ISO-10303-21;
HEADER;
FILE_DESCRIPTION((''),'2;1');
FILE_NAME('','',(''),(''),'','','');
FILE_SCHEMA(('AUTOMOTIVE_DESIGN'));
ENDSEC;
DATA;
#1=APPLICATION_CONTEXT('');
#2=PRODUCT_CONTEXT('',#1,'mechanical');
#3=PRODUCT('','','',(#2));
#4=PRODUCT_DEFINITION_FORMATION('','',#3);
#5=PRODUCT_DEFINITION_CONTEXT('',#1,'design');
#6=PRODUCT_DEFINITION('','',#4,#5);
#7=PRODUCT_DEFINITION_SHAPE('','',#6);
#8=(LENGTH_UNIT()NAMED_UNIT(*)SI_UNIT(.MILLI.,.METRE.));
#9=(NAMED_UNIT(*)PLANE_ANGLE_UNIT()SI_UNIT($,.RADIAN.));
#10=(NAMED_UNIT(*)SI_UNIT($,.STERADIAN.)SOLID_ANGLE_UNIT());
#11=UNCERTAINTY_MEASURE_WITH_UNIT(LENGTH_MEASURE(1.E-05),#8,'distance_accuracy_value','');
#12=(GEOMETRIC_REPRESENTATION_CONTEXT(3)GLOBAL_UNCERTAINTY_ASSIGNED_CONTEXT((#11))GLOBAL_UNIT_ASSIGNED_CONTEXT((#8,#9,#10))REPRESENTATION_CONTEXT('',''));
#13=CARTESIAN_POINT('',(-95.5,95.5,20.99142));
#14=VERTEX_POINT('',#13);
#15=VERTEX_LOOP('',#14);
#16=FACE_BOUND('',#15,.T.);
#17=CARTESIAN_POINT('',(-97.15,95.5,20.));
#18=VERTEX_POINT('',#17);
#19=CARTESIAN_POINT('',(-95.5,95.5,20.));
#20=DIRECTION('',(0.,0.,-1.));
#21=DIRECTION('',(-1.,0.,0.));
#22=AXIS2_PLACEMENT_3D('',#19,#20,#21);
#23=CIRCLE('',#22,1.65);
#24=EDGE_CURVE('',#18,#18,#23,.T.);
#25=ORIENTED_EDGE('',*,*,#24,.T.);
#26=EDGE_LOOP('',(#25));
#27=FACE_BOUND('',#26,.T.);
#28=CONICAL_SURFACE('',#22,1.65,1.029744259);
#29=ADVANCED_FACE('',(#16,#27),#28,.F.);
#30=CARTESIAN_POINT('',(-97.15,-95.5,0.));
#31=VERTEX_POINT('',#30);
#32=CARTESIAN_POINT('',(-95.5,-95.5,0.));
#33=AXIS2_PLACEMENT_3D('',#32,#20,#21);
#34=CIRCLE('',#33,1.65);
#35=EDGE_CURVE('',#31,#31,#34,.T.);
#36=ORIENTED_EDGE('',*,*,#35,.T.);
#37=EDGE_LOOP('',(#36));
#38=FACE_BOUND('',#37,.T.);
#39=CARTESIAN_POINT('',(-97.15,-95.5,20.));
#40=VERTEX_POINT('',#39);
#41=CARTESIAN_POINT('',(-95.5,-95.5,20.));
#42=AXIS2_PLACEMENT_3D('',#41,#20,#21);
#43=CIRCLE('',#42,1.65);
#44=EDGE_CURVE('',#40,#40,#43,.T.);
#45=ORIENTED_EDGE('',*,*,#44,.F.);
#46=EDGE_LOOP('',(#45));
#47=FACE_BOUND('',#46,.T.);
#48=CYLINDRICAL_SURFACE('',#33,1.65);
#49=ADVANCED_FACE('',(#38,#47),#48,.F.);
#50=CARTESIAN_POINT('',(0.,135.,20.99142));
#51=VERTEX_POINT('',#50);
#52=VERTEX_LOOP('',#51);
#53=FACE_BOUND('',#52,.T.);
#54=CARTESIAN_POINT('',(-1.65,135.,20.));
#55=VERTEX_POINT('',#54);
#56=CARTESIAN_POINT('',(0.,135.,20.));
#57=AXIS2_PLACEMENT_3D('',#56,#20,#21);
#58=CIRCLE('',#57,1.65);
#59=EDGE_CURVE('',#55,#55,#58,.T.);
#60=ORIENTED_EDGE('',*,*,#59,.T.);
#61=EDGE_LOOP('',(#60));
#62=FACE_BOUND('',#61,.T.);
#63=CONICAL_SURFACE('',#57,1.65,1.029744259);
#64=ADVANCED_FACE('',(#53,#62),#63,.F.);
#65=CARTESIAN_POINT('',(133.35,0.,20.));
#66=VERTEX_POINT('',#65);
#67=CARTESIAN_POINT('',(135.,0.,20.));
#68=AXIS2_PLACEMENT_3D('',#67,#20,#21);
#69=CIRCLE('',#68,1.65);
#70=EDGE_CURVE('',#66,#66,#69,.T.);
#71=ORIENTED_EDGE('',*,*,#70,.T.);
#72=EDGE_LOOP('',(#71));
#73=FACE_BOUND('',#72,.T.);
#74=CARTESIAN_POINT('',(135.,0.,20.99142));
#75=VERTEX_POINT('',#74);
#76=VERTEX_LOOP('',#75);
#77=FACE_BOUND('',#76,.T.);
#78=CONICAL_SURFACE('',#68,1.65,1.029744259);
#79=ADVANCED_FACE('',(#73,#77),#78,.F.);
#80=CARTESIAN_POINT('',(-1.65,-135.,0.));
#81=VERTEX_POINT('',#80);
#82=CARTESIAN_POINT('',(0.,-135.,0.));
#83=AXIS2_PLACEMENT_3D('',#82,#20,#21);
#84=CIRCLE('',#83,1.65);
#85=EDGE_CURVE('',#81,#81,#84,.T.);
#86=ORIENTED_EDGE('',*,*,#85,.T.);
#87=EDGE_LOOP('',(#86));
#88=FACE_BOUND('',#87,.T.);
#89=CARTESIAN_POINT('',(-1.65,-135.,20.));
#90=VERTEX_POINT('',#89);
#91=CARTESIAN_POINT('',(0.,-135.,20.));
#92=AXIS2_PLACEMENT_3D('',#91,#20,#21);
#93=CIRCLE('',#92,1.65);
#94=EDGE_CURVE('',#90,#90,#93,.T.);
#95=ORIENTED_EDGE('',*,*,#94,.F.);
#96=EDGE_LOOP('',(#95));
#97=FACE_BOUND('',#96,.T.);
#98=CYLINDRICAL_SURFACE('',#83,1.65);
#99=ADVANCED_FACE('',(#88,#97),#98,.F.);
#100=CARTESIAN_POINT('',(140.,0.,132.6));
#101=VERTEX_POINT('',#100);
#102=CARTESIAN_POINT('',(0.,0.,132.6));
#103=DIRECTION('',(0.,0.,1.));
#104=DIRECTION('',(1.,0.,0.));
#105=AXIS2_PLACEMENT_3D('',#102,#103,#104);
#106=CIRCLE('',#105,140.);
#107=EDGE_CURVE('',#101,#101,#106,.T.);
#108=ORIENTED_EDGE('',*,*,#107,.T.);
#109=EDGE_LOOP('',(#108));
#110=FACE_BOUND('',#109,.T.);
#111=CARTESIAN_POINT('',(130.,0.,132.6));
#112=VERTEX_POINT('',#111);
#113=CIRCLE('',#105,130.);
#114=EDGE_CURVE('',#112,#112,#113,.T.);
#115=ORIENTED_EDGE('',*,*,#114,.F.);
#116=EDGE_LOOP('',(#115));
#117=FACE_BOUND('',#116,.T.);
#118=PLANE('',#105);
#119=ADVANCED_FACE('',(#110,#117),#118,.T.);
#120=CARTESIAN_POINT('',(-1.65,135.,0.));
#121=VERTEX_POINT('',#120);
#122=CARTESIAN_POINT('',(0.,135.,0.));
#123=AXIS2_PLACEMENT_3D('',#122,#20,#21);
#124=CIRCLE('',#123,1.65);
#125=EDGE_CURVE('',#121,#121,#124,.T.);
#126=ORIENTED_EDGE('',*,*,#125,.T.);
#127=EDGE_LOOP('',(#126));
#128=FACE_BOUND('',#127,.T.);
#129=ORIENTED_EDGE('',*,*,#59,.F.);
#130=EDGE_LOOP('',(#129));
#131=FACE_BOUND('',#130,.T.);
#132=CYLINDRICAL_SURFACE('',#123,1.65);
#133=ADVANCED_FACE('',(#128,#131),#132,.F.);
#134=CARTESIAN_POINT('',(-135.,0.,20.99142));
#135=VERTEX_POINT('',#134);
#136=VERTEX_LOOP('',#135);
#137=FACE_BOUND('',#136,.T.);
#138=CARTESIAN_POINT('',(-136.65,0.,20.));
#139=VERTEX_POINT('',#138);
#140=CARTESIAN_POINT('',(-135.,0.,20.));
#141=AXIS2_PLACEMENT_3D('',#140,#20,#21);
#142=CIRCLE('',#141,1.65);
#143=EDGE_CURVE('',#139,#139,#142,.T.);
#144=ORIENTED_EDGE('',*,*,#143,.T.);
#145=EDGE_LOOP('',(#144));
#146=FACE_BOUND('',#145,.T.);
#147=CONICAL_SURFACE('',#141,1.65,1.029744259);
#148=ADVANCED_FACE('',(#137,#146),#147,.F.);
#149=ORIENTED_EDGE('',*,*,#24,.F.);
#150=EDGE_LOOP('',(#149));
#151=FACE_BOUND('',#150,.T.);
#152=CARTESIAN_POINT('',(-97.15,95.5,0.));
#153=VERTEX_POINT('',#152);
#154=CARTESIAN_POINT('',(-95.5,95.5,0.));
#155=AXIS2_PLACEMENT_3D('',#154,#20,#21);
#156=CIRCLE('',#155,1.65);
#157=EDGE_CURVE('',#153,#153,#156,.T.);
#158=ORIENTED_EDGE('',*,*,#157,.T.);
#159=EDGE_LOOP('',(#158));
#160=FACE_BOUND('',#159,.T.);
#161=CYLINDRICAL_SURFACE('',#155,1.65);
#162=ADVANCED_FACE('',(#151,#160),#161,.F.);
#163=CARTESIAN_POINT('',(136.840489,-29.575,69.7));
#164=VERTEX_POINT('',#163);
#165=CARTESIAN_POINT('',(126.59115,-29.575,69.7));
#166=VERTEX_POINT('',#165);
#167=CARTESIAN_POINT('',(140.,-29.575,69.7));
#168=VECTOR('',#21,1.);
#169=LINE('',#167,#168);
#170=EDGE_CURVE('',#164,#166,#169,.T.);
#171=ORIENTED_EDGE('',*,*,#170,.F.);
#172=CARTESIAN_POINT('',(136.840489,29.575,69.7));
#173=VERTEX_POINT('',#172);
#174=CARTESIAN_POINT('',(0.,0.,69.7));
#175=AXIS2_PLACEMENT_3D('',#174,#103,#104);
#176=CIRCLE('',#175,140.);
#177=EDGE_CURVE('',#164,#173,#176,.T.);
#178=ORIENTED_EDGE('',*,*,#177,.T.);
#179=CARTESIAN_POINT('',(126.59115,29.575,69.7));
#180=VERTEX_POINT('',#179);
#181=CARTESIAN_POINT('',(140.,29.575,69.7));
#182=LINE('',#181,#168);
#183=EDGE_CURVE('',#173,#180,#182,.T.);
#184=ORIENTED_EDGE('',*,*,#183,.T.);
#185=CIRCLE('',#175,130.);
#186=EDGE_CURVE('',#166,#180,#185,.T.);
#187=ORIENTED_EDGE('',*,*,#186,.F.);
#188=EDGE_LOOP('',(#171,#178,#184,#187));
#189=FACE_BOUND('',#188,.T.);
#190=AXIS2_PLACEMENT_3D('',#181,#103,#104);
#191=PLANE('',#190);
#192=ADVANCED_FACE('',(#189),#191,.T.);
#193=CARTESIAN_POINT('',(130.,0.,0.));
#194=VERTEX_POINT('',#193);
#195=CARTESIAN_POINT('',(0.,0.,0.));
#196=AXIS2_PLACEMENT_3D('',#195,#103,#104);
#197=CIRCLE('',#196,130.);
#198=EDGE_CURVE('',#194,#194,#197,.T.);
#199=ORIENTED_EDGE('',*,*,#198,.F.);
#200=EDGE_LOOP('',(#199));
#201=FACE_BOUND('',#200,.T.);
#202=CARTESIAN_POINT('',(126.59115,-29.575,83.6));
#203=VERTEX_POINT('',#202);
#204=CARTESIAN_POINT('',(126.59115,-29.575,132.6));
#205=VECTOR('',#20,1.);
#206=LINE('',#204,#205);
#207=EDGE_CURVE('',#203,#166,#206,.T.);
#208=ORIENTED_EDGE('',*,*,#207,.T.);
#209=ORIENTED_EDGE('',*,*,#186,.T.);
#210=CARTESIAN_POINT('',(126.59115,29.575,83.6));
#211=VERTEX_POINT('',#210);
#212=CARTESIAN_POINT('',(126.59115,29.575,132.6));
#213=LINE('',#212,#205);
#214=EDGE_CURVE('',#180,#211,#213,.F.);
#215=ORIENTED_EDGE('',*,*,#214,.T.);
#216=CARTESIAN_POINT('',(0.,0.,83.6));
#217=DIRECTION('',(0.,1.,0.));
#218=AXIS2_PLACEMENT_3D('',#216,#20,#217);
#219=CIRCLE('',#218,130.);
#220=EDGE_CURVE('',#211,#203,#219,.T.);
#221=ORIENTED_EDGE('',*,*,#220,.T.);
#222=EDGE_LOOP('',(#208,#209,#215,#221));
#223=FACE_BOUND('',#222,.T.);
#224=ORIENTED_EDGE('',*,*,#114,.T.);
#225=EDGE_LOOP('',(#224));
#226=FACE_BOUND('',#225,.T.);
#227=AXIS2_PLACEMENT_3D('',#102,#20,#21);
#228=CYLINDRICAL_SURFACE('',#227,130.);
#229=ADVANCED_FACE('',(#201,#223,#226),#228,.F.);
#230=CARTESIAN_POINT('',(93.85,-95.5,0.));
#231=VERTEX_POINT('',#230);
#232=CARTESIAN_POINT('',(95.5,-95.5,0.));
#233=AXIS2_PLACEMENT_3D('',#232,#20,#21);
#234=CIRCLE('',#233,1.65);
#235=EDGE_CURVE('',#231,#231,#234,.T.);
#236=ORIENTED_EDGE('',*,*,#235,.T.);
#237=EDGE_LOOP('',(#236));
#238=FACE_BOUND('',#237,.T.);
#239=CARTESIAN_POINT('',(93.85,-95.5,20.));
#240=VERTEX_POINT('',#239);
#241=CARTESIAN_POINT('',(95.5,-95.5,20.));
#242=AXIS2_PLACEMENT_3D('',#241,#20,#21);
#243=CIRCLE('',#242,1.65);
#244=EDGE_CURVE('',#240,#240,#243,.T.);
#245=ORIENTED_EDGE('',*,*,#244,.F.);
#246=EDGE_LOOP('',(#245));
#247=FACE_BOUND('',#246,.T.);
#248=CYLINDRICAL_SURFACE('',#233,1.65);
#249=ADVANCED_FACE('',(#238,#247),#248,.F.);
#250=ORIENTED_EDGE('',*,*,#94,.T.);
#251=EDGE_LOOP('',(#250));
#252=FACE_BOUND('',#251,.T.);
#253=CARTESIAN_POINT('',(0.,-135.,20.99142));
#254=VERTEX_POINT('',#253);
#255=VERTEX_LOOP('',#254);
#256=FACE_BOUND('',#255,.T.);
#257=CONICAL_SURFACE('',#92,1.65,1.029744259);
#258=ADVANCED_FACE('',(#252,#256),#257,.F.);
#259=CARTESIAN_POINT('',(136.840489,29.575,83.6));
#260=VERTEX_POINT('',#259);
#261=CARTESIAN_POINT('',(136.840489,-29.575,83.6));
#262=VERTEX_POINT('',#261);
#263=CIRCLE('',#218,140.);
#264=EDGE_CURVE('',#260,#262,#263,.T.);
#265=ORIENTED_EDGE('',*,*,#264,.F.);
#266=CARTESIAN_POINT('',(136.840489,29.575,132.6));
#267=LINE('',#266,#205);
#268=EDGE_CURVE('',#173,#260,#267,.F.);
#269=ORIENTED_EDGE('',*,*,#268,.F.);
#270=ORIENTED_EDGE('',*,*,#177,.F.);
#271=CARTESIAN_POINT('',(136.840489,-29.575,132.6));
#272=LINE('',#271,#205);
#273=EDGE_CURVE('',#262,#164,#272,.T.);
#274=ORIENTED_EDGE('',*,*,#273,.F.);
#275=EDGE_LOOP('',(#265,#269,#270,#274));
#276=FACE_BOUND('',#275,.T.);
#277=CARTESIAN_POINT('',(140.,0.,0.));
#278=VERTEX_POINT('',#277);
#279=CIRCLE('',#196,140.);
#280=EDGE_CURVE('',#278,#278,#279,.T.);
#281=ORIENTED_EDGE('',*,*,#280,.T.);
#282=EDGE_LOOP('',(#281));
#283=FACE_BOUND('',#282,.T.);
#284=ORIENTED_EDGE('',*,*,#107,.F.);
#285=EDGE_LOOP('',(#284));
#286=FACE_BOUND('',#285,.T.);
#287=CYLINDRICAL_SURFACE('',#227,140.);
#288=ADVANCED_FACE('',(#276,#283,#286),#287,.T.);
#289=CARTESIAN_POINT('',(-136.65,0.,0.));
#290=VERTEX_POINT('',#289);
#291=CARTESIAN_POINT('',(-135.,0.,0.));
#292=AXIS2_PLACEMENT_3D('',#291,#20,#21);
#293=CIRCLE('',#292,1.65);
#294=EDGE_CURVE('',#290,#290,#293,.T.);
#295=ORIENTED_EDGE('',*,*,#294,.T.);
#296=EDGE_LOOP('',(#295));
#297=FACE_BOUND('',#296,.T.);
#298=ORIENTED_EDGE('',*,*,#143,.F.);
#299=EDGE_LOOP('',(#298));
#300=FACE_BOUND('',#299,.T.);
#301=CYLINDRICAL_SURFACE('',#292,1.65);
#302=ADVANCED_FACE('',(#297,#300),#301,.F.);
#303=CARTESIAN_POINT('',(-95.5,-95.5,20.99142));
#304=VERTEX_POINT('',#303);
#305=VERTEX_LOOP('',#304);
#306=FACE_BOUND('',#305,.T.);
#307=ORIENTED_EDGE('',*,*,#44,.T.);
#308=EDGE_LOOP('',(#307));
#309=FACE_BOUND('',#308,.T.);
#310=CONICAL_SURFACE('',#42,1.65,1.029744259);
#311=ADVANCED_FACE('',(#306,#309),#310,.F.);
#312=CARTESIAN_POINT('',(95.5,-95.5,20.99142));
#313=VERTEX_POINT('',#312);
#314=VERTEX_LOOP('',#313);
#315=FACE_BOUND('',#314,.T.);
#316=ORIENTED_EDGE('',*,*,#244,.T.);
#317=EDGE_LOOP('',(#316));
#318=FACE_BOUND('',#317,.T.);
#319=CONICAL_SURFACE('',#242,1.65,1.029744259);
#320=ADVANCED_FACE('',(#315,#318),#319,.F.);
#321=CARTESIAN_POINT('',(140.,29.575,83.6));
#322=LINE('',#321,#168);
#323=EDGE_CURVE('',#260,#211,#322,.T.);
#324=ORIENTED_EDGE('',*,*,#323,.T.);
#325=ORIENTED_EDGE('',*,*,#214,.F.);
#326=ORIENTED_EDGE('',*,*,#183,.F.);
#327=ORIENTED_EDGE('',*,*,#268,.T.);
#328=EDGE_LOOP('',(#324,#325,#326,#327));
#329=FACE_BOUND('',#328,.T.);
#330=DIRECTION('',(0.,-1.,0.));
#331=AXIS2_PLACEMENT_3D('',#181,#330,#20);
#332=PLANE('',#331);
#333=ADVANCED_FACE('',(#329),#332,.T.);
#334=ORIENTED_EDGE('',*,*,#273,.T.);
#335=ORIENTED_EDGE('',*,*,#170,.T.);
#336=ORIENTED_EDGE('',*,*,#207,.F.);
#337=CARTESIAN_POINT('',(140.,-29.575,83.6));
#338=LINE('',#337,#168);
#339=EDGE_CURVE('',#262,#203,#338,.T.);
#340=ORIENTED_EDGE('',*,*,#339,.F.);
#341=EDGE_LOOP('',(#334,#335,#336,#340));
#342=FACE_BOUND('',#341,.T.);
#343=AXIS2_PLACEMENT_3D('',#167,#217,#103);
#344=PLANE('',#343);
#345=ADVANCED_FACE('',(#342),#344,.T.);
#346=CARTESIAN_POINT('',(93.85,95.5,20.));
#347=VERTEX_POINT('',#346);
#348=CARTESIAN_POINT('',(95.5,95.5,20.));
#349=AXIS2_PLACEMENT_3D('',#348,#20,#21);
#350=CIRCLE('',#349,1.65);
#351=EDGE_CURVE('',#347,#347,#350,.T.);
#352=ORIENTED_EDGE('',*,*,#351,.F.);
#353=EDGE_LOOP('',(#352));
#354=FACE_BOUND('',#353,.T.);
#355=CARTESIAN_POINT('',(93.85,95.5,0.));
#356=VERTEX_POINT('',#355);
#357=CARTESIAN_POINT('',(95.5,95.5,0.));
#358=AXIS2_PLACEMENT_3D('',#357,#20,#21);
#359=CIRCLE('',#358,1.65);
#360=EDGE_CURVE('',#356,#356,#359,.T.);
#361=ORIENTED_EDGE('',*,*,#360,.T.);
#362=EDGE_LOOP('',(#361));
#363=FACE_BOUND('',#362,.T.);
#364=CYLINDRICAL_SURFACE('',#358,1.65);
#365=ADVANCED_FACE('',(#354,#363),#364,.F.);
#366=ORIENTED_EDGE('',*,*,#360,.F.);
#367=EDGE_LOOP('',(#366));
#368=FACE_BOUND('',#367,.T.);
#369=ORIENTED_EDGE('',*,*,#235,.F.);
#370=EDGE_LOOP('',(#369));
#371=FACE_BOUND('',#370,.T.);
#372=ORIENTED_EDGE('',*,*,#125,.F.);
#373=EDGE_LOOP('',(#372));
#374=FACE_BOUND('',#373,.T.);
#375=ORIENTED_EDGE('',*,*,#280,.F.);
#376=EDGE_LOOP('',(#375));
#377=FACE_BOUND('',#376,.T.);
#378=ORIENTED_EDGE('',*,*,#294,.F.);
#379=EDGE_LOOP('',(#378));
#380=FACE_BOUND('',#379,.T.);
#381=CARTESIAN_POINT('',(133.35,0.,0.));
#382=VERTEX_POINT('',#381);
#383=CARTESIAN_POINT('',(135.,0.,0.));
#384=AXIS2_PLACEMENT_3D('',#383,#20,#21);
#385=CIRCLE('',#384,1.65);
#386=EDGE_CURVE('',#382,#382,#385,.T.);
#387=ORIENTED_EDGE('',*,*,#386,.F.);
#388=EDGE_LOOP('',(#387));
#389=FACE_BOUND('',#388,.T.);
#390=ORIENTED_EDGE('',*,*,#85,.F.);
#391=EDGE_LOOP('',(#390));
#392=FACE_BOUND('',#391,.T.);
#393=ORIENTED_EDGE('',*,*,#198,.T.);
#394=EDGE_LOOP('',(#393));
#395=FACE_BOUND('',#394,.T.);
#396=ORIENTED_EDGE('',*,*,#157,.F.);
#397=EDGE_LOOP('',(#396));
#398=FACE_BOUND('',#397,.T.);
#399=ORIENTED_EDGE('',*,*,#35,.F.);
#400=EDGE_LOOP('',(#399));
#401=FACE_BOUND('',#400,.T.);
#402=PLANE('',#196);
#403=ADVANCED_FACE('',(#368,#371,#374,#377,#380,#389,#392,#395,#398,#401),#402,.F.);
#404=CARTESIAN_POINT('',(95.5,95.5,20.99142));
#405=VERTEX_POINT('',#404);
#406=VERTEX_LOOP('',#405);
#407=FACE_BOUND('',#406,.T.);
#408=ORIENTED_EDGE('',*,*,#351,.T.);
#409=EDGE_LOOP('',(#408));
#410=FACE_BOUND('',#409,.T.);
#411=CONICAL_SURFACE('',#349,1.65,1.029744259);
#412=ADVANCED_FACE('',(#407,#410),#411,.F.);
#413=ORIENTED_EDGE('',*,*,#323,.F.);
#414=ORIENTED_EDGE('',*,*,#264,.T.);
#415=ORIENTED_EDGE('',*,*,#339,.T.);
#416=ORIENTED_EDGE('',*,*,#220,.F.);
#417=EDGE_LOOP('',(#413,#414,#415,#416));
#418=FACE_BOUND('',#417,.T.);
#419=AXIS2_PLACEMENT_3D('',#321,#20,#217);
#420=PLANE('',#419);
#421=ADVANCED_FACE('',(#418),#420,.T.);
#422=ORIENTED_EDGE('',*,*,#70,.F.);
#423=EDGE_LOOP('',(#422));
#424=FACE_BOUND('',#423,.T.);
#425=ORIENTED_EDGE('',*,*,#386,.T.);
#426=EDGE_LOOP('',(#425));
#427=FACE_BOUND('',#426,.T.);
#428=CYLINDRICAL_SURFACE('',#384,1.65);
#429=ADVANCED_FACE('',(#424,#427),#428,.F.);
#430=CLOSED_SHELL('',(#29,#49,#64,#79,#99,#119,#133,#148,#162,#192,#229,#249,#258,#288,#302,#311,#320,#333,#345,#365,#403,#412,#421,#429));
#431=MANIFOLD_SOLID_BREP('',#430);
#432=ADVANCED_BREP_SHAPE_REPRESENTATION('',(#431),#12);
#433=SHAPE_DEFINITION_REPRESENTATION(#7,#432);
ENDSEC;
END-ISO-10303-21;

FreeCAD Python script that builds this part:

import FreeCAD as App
import Part
import Sketcher
from FreeCAD import Vector

doc = App.newDocument("Part")
body = doc.addObject("PartDesign::Body", "Body")

sketch1 = body.newObject("Sketcher::SketchObject", "Sketch")
sketch1.AttachmentSupport = (doc.getObject("XY_Plane"), [""])
sketch1.MapMode = "FlatFace"
sketch1.addGeometry([
    Part.Circle(Vector(0, 0, 0), Vector(0, 0, 1), 140),
    Part.Circle(Vector(0, 0, 0), Vector(0, 0, 1), 130),
], False)
sketch1.addConstraint([
    Sketcher.Constraint("Coincident", 0, 3, -1, 1),
    Sketcher.Constraint("Coincident", 1, 3, -1, 1),
    Sketcher.Constraint("Diameter", 0, 280.0),
    Sketcher.Constraint("Diameter", 1, 260.0),
])
pad1 = body.newObject("PartDesign::Pad", "Pad")
pad1.Profile = sketch1
pad1.Length = 132.6

sketch2 = body.newObject("Sketcher::SketchObject", "Sketch001")
sketch2.AttachmentSupport = (doc.getObject("XY_Plane"), [""])
sketch2.MapMode = "FlatFace"
sketch2.addGeometry([
    Part.Circle(Vector(0, 135, 0), Vector(0, 0, 1), 1.65),
    Part.Circle(Vector(-135, 0, 0), Vector(0, 0, 1), 1.65),
    Part.Circle(Vector(-95.5, 95.5, 0), Vector(0, 0, 1), 1.65),
    Part.Circle(Vector(-95.5, -95.5, 0), Vector(0, 0, 1), 1.65),
    Part.Circle(Vector(0, -135, 0), Vector(0, 0, 1), 1.65),
    Part.Circle(Vector(95.5, -95.5, 0), Vector(0, 0, 1), 1.65),
    Part.Circle(Vector(135, 0, 0), Vector(0, 0, 1), 1.65),
    Part.Circle(Vector(95.5, 95.5, 0), Vector(0, 0, 1), 1.65),
], False)
sketch2.addConstraint([
    Sketcher.Constraint("Equal", 0, 1),
    Sketcher.Constraint("Equal", 1, 2),
    Sketcher.Constraint("Equal", 2, 3),
    Sketcher.Constraint("Equal", 3, 4),
    Sketcher.Constraint("Equal", 4, 5),
    Sketcher.Constraint("Equal", 5, 6),
    Sketcher.Constraint("Equal", 6, 7),
    Sketcher.Constraint("Symmetric", 0, 3, 4, 3, -1, 1),
    Sketcher.Constraint("Symmetric", 2, 3, 5, 3, -1, 1),
    Sketcher.Constraint("Symmetric", 1, 3, 6, 3, -1, 1),
    Sketcher.Constraint("Symmetric", 3, 3, 7, 3, -1, 1),
    Sketcher.Constraint("Symmetric", 3, 3, 5, 3, -2),
    Sketcher.Constraint("PointOnObject", 0, 3, -2),
    Sketcher.Constraint("PointOnObject", 1, 3, -1),
    Sketcher.Constraint("Diameter", 0, 3.3),
    Sketcher.Constraint("DistanceY", -1, 1, 0, 3, 135.0),
    Sketcher.Constraint("DistanceX", 1, 3, -1, 1, 135.0),
    Sketcher.Constraint("DistanceY", 3, 3, 2, 3, 191.0),
    Sketcher.Constraint("DistanceX", 3, 3, 5, 3, 191.0),
])
doc.recompute()
hole = body.newObject("PartDesign::Hole", "Hole")
hole.Profile = sketch2
hole.ThreadType = "None"
hole.Diameter = 3.3
hole.DepthType = "Dimension"
hole.Depth = 20
hole.DrillPoint = "Angled"
hole.DrillPointAngle = 118
hole.Reversed = True

sketch3 = body.newObject("Sketcher::SketchObject", "Sketch002")
sketch3.AttachmentSupport = (doc.getObject("YZ_Plane"), [""])
sketch3.MapMode = "FlatFace"
sketch3.addGeometry([
    Part.LineSegment(Vector(29.575, 83.6, 0), Vector(-29.575, 83.6, 0)),
    Part.LineSegment(Vector(-29.575, 83.6, 0), Vector(-29.575, 69.7, 0)),
    Part.LineSegment(Vector(-29.575, 69.7, 0), Vector(29.575, 69.7, 0)),
    Part.LineSegment(Vector(29.575, 69.7, 0), Vector(29.575, 83.6, 0)),
], False)
sketch3.addConstraint([
    Sketcher.Constraint("Coincident", 0, 2, 1, 1),
    Sketcher.Constraint("Coincident", 1, 2, 2, 1),
    Sketcher.Constraint("Coincident", 2, 2, 3, 1),
    Sketcher.Constraint("Coincident", 3, 2, 0, 1),
    Sketcher.Constraint("Horizontal", 0),
    Sketcher.Constraint("Vertical", 1),
    Sketcher.Constraint("Horizontal", 2),
    Sketcher.Constraint("Vertical", 3),
    Sketcher.Constraint("DistanceY", 1, 2, 1, 1, 13.9),
    Sketcher.Constraint("DistanceX", 0, 2, 0, 1, 59.15),
    Sketcher.Constraint("DistanceY", -1, 1, 0, 2, 83.6),
    Sketcher.Constraint("DistanceX", 0, 2, -1, 1, 29.575),
])
pocket1 = body.newObject("PartDesign::Pocket", "Pocket")
pocket1.Profile = sketch3
pocket1.Length = 140
pocket1.Reversed = True

doc.recompute()
